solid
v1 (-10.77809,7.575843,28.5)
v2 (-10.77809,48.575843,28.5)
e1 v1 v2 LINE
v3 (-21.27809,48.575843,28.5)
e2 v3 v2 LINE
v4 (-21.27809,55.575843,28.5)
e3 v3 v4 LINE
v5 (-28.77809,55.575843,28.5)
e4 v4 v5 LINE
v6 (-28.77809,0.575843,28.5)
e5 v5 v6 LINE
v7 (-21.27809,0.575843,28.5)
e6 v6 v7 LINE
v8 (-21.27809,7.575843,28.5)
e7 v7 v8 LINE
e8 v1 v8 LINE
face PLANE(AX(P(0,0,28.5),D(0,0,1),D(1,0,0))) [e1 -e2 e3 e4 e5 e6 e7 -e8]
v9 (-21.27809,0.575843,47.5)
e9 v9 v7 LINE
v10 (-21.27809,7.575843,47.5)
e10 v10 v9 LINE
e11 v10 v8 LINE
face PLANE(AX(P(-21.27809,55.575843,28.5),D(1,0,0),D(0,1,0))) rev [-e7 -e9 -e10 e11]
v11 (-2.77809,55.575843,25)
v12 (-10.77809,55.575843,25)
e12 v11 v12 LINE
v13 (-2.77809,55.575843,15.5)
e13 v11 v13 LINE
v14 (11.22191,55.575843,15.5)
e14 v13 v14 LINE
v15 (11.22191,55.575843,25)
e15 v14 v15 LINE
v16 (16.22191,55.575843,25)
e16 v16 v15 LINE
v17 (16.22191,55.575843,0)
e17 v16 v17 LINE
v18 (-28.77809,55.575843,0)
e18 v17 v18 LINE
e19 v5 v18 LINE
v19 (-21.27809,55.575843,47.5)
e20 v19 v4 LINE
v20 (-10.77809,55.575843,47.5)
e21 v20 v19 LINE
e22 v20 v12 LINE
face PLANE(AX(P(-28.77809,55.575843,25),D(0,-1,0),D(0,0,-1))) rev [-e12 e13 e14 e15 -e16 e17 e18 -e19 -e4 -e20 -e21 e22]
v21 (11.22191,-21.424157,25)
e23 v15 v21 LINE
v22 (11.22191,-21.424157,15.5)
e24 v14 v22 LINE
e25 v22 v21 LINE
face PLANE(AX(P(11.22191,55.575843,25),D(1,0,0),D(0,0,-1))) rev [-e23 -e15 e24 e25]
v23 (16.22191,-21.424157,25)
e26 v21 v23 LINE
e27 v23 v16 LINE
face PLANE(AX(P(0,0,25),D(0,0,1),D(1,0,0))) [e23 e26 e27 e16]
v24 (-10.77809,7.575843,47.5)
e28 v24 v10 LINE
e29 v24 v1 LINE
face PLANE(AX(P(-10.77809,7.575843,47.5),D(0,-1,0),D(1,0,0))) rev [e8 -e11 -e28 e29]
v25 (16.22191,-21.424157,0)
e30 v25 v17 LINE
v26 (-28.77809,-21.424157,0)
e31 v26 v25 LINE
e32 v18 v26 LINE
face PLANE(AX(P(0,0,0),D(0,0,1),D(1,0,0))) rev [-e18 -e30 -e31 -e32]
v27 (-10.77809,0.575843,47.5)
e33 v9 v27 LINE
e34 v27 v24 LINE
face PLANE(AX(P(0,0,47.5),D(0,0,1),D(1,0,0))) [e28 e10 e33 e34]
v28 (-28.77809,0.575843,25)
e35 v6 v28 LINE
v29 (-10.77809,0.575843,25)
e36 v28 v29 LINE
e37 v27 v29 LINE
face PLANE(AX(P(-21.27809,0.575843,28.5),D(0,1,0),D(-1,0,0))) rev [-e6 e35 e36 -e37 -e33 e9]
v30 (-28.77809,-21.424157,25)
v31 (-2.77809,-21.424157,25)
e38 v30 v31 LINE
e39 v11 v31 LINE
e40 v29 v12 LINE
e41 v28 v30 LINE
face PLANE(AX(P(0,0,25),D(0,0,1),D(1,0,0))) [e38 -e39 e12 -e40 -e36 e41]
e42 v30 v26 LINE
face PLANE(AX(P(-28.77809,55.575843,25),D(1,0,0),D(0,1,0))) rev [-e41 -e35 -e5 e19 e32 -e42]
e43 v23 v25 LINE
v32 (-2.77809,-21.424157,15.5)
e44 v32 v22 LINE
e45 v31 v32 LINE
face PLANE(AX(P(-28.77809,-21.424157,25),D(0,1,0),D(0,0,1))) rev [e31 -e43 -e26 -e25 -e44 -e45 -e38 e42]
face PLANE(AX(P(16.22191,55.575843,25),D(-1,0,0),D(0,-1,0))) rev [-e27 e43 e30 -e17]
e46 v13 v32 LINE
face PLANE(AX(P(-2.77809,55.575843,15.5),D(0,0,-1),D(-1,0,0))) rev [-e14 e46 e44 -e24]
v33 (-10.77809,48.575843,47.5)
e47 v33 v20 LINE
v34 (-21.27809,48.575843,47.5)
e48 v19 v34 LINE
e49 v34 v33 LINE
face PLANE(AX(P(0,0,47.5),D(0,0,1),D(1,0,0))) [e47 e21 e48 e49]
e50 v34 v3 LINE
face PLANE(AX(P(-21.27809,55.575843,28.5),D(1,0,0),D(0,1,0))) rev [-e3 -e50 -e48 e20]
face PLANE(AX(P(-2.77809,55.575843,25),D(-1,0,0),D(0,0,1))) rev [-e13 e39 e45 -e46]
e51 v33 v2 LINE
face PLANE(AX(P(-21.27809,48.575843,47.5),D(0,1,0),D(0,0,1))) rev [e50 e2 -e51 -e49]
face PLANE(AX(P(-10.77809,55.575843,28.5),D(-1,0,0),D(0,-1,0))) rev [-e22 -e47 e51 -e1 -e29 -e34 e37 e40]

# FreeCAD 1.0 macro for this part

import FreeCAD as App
import Part
import Sketcher
from FreeCAD import Vector
Q = App.Units.Quantity

doc = App.newDocument("Part")
body = doc.addObject("PartDesign::Body", "Body")

sketch1 = body.newObject("Sketcher::SketchObject", "Sketch")
sketch1.AttachmentSupport = (doc.getObject("XY_Plane"), [""])
sketch1.MapMode = "FlatFace"
sketch1.addGeometry([
    Part.LineSegment(Vector(-29, 56, 0), Vector(-29, -21, 0)),
    Part.LineSegment(Vector(-29, -21, 0), Vector(16, -21, 0)),
    Part.LineSegment(Vector(16, -21, 0), Vector(16, 56, 0)),
    Part.LineSegment(Vector(16, 56, 0), Vector(-29, 56, 0)),
], False)
sketch1.addConstraint([
    Sketcher.Constraint("Coincident", 0, 2, 1, 1),
    Sketcher.Constraint("Coincident", 1, 2, 2, 1),
    Sketcher.Constraint("Coincident", 2, 2, 3, 1),
    Sketcher.Constraint("Coincident", 3, 2, 0, 1),
    Sketcher.Constraint("Vertical", 0),
    Sketcher.Constraint("Horizontal", 1),
    Sketcher.Constraint("Vertical", 2),
    Sketcher.Constraint("Horizontal", 3),
    Sketcher.Constraint("DistanceX", 1, 1, 1, 2, Q("45 mm")),
    Sketcher.Constraint("DistanceY", 0, 2, 0, 1, Q("77 mm")),
    Sketcher.Constraint("DistanceX", 0, 2, -1, 1, Q("28.77809 mm")),
    Sketcher.Constraint("DistanceY", 0, 2, -1, 1, Q("21.424157 mm")),
])
pad1 = body.newObject("PartDesign::Pad", "Pad")
pad1.Profile = sketch1
pad1.Length = 25

sketch2 = body.newObject("Sketcher::SketchObject", "Sketch001")
sketch2.AttachmentSupport = (doc.getObject("XZ_Plane"), [""])
sketch2.MapMode = "FlatFace"
sketch2.AttachmentOffset = App.Placement(Vector(0, 0, 21.424157), App.Rotation())
sketch2.addGeometry([
    Part.LineSegment(Vector(-3, 25, 0), Vector(-3, 16, 0)),
    Part.LineSegment(Vector(-3, 16, 0), Vector(11, 16, 0)),
    Part.LineSegment(Vector(11, 16, 0), Vector(11, 25, 0)),
    Part.LineSegment(Vector(11, 25, 0), Vector(-3, 25, 0)),
], False)
sketch2.addConstraint([
    Sketcher.Constraint("Coincident", 0, 2, 1, 1),
    Sketcher.Constraint("Coincident", 1, 2, 2, 1),
    Sketcher.Constraint("Coincident", 2, 2, 3, 1),
    Sketcher.Constraint("Coincident", 3, 2, 0, 1),
    Sketcher.Constraint("Vertical", 0),
    Sketcher.Constraint("Horizontal", 1),
    Sketcher.Constraint("Vertical", 2),
    Sketcher.Constraint("Horizontal", 3),
    Sketcher.Constraint("DistanceX", 1, 1, 1, 2, Q("14 mm")),
    Sketcher.Constraint("DistanceY", 0, 2, 0, 1, Q("9.5 mm")),
    Sketcher.Constraint("DistanceY", -1, 1, 2, 2, Q("25 mm")),
    Sketcher.Constraint("DistanceX", 0, 2, -1, 1, Q("2.77809 mm")),
])
pocket1 = body.newObject("PartDesign::Pocket", "Pocket")
pocket1.Profile = sketch2
pocket1.Type = "ThroughAll"

sketch3 = body.newObject("Sketcher::SketchObject", "Sketch002")
sketch3.AttachmentSupport = (doc.getObject("XY_Plane"), [""])
sketch3.MapMode = "FlatFace"
sketch3.AttachmentOffset = App.Placement(Vector(0, 0, 25), App.Rotation())
sketch3.addGeometry([
    Part.LineSegment(Vector(-21, 56, 0), Vector(-21, 1, 0)),
    Part.LineSegment(Vector(-21, 1, 0), Vector(-11, 1, 0)),
    Part.LineSegment(Vector(-11, 1, 0), Vector(-11, 56, 0)),
    Part.LineSegment(Vector(-11, 56, 0), Vector(-21, 56, 0)),
], False)
sketch3.addConstraint([
    Sketcher.Constraint("Coincident", 0, 2, 1, 1),
    Sketcher.Constraint("Coincident", 1, 2, 2, 1),
    Sketcher.Constraint("Coincident", 2, 2, 3, 1),
    Sketcher.Constraint("Coincident", 3, 2, 0, 1),
    Sketcher.Constraint("Vertical", 0),
    Sketcher.Constraint("Horizontal", 1),
    Sketcher.Constraint("Vertical", 2),
    Sketcher.Constraint("Horizontal", 3),
    Sketcher.Constraint("DistanceY", 0, 2, 0, 1, Q("55 mm")),
    Sketcher.Constraint("DistanceX", 1, 1, 1, 2, Q("10.5 mm")),
    Sketcher.Constraint("DistanceX", 0, 2, -1, 1, Q("21.27809 mm")),
    Sketcher.Constraint("DistanceY", -1, 1, 0, 2, Q("0.575843 mm")),
])
pad2 = body.newObject("PartDesign::Pad", "Pad001")
pad2.Profile = sketch3
pad2.Length = 3.5

sketch4 = body.newObject("Sketcher::SketchObject", "Sketch003")
sketch4.AttachmentSupport = (doc.getObject("XY_Plane"), [""])
sketch4.MapMode = "FlatFace"
sketch4.AttachmentOffset = App.Placement(Vector(0, 0, 28.5), App.Rotation())
sketch4.addGeometry([
    Part.LineSegment(Vector(-21, 8, 0), Vector(-21, 1, 0)),
    Part.LineSegment(Vector(-21, 1, 0), Vector(-11, 1, 0)),
    Part.LineSegment(Vector(-11, 1, 0), Vector(-11, 8, 0)),
    Part.LineSegment(Vector(-11, 8, 0), Vector(-21, 8, 0)),
    Part.LineSegment(Vector(-21, 56, 0), Vector(-21, 49, 0)),
    Part.LineSegment(Vector(-21, 49, 0), Vector(-11, 49, 0)),
    Part.LineSegment(Vector(-11, 49, 0), Vector(-11, 56, 0)),
    Part.LineSegment(Vector(-11, 56, 0), Vector(-21, 56, 0)),
], False)
sketch4.addConstraint([
    Sketcher.Constraint("Coincident", 0, 2, 1, 1),
    Sketcher.Constraint("Coincident", 1, 2, 2, 1),
    Sketcher.Constraint("Coincident", 2, 2, 3, 1),
    Sketcher.Constraint("Coincident", 3, 2, 0, 1),
    Sketcher.Constraint("Coincident", 4, 2, 5, 1),
    Sketcher.Constraint("Coincident", 5, 2, 6, 1),
    Sketcher.Constraint("Coincident", 6, 2, 7, 1),
    Sketcher.Constraint("Coincident", 7, 2, 4, 1),
    Sketcher.Constraint("Vertical", 0),
    Sketcher.Constraint("Horizontal", 1),
    Sketcher.Constraint("Vertical", 2),
    Sketcher.Constraint("Horizontal", 3),
    Sketcher.Constraint("Vertical", 4),
    Sketcher.Constraint("Horizontal", 5),
    Sketcher.Constraint("Vertical", 6),
    Sketcher.Constraint("Horizontal", 7),
    Sketcher.Constraint("Vertical", 3, 2, 4, 2),
    Sketcher.Constraint("Vertical", 2, 2, 5, 2),
    Sketcher.Constraint("Equal", 2, 4),
    Sketcher.Constraint("DistanceY", 0, 2, 0, 1, Q("7 mm")),
    Sketcher.Constraint("DistanceX", 1, 1, 1, 2, Q("10.5 mm")),
    Sketcher.Constraint("DistanceY", 3, 2, 4, 2, Q("41 mm")),
    Sketcher.Constraint("DistanceX", 0, 2, -1, 1, Q("21.27809 mm")),
    Sketcher.Constraint("DistanceY", -1, 1, 0, 2, Q("0.575843 mm")),
])
pad3 = body.newObject("PartDesign::Pad", "Pad002")
pad3.Profile = sketch4
pad3.Length = 19

sketch5 = body.newObject("Sketcher::SketchObject", "Sketch004")
sketch5.AttachmentSupport = (doc.getObject("XY_Plane"), [""])
sketch5.MapMode = "FlatFace"
sketch5.AttachmentOffset = App.Placement(Vector(0, 0, 25), App.Rotation())
sketch5.addGeometry([
    Part.LineSegment(Vector(-29, 56, 0), Vector(-29, 1, 0)),
    Part.LineSegment(Vector(-29, 1, 0), Vector(-21, 1, 0)),
    Part.LineSegment(Vector(-21, 1, 0), Vector(-21, 56, 0)),
    Part.LineSegment(Vector(-21, 56, 0), Vector(-29, 56, 0)),
], False)
sketch5.addConstraint([
    Sketcher.Constraint("Coincident", 0, 2, 1, 1),
    Sketcher.Constraint("Coincident", 1, 2, 2, 1),
    Sketcher.Constraint("Coincident", 2, 2, 3, 1),
    Sketcher.Constraint("Coincident", 3, 2, 0, 1),
    Sketcher.Constraint("Vertical", 0),
    Sketcher.Constraint("Horizontal", 1),
    Sketcher.Constraint("Vertical", 2),
    Sketcher.Constraint("Horizontal", 3),
    Sketcher.Constraint("DistanceY", 0, 2, 0, 1, Q("55 mm")),
    Sketcher.Constraint("DistanceX", 1, 1, 1, 2, Q("7.5 mm")),
    Sketcher.Constraint("DistanceX", 0, 2, -1, 1, Q("28.77809 mm")),
    Sketcher.Constraint("DistanceY", -1, 1, 0, 2, Q("0.575843 mm")),
])
pad4 = body.newObject("PartDesign::Pad", "Pad003")
pad4.Profile = sketch5
pad4.Length = 3.5

doc.recompute()
